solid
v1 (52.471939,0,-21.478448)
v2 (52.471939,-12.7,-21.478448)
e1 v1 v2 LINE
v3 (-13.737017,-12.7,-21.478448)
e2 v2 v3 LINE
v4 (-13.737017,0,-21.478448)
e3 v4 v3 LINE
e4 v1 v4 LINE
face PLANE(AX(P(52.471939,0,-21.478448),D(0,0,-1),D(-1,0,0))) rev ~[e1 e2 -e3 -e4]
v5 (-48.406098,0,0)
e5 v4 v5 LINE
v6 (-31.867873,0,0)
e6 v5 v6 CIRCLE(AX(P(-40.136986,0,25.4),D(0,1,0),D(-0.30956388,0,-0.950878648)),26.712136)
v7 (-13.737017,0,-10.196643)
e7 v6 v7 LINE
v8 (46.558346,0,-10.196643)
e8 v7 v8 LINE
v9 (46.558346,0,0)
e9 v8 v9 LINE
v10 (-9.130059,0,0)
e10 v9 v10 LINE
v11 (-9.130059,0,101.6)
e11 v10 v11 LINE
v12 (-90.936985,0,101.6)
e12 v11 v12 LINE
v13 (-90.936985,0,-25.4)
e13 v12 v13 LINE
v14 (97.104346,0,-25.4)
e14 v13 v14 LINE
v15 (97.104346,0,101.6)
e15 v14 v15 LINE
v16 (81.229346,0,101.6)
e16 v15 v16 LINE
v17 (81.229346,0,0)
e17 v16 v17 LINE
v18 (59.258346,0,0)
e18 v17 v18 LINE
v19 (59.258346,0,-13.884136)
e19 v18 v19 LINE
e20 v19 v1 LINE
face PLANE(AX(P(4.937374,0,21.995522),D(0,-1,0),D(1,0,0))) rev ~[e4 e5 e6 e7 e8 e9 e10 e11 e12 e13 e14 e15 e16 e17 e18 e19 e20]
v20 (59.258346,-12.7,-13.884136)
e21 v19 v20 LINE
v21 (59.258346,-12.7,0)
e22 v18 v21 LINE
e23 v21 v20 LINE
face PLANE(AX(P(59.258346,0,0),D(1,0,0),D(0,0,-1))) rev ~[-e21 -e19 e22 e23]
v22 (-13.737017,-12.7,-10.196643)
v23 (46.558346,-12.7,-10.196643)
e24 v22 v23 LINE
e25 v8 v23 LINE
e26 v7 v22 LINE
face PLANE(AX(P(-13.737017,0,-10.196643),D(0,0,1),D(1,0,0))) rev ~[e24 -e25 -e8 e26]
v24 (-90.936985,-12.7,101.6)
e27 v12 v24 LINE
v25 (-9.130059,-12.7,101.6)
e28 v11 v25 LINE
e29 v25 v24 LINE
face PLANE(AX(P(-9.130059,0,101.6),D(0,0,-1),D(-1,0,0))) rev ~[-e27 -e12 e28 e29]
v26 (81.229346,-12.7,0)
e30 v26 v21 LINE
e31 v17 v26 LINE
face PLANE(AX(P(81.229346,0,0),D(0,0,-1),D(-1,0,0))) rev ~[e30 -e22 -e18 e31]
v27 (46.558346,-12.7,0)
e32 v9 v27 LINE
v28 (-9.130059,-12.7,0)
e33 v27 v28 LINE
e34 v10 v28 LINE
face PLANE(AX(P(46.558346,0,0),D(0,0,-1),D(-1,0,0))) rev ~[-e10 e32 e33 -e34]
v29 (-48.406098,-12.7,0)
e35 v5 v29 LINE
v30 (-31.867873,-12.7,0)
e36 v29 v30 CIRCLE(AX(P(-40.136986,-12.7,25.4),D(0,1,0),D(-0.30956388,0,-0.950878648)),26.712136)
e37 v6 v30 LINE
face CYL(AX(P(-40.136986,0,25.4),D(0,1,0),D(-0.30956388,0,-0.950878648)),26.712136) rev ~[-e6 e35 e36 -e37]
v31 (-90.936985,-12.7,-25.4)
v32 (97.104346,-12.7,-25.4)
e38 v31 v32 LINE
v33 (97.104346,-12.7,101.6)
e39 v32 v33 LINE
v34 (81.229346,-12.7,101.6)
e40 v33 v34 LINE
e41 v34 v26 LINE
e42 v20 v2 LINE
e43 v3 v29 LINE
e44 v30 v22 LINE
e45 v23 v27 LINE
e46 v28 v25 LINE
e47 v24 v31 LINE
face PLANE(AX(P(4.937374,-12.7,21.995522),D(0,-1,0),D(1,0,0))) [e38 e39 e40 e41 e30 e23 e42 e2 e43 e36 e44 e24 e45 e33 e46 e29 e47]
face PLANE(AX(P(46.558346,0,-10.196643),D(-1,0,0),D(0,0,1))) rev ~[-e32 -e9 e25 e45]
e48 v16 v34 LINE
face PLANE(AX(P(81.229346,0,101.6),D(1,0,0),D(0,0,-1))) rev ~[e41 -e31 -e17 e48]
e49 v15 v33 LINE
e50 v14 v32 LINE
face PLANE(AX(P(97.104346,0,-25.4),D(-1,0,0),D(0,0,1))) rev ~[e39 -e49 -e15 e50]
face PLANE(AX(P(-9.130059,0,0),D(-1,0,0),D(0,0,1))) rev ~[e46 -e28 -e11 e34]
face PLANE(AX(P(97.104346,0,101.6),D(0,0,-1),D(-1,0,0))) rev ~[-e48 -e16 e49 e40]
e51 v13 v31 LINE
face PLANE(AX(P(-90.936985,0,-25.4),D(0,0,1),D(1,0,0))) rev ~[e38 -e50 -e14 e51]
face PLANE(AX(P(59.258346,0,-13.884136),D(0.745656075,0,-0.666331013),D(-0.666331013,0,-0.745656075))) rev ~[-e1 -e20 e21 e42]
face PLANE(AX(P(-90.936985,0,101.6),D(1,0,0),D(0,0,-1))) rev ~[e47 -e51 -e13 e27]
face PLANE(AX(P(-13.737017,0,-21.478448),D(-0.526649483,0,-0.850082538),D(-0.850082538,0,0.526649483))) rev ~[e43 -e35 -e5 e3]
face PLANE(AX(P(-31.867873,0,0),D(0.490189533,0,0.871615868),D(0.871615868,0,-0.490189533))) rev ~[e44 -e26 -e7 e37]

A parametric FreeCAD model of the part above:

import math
import FreeCAD as App
import Part
import Sketcher
Q = App.Units.Quantity

doc = App.newDocument("Part")
body = doc.addObject("PartDesign::Body", "Body")

# Sketch on XZ plane
sketch1 = body.newObject("Sketcher::SketchObject", "Sketch")
sketch1.AttachmentSupport = (doc.getObject("XZ_Plane"), [""])
sketch1.MapMode = "FlatFace"
sketch1.addGeometry([
    Part.LineSegment(App.Vector(-9, 102, 0), App.Vector(-91, 102, 0)),  # 0
    Part.LineSegment(App.Vector(-91, 102, 0), App.Vector(-91, -25, 0)),  # 1
    Part.LineSegment(App.Vector(-91, -25, 0), App.Vector(97, -25, 0)),  # 2
    Part.LineSegment(App.Vector(97, -25, 0), App.Vector(97, 102, 0)),  # 3
    Part.LineSegment(App.Vector(97, 102, 0), App.Vector(81, 102, 0)),  # 4
    Part.LineSegment(App.Vector(81, 102, 0), App.Vector(81, 0, 0)),  # 5
    Part.LineSegment(App.Vector(81, 0, 0), App.Vector(59, 0, 0)),  # 6
    Part.LineSegment(App.Vector(59, 0, 0), App.Vector(59, -14, 0)),  # 7
    Part.LineSegment(App.Vector(59, -14, 0), App.Vector(52, -21, 0)),  # 8
    Part.LineSegment(App.Vector(52, -21, 0), App.Vector(-14, -21, 0)),  # 9
    Part.LineSegment(App.Vector(-14, -21, 0), App.Vector(-48, 0, 0)),  # 10
    Part.ArcOfCircle(Part.Circle(App.Vector(-40, 25, 0), App.Vector(0, 0, 1), 27), math.radians(-72), math.radians(252)),  # 11
    Part.LineSegment(App.Vector(-32, 0, 0), App.Vector(-14, -10, 0)),  # 12
    Part.LineSegment(App.Vector(-14, -10, 0), App.Vector(47, -10, 0)),  # 13
    Part.LineSegment(App.Vector(47, -10, 0), App.Vector(47, 0, 0)),  # 14
    Part.LineSegment(App.Vector(47, 0, 0), App.Vector(-9, 0, 0)),  # 15
    Part.LineSegment(App.Vector(-9, 0, 0), App.Vector(-9, 102, 0)),  # 16
], False)
sketch1.addConstraint([
    Sketcher.Constraint("Coincident", 0, 2, 1, 1),
    Sketcher.Constraint("Coincident", 1, 2, 2, 1),
    Sketcher.Constraint("Coincident", 2, 2, 3, 1),
    Sketcher.Constraint("Coincident", 3, 2, 4, 1),
    Sketcher.Constraint("Coincident", 4, 2, 5, 1),
    Sketcher.Constraint("Coincident", 5, 2, 6, 1),
    Sketcher.Constraint("Coincident", 6, 2, 7, 1),
    Sketcher.Constraint("Coincident", 7, 2, 8, 1),
    Sketcher.Constraint("Coincident", 8, 2, 9, 1),
    Sketcher.Constraint("Coincident", 9, 2, 10, 1),
    Sketcher.Constraint("Coincident", 10, 2, 11, 2),
    Sketcher.Constraint("Coincident", 11, 1, 12, 1),
    Sketcher.Constraint("Coincident", 12, 2, 13, 1),
    Sketcher.Constraint("Coincident", 13, 2, 14, 1),
    Sketcher.Constraint("Coincident", 14, 2, 15, 1),
    Sketcher.Constraint("Coincident", 15, 2, 16, 1),
    Sketcher.Constraint("Coincident", 16, 2, 0, 1),
    Sketcher.Constraint("Horizontal", 0),
    Sketcher.Constraint("Vertical", 1),
    Sketcher.Constraint("Horizontal", 2),
    Sketcher.Constraint("Vertical", 3),
    Sketcher.Constraint("Horizontal", 4),
    Sketcher.Constraint("Vertical", 5),
    Sketcher.Constraint("Horizontal", 6),
    Sketcher.Constraint("Vertical", 7),
    Sketcher.Constraint("Horizontal", 9),
    Sketcher.Constraint("Horizontal", 13),
    Sketcher.Constraint("Vertical", 14),
    Sketcher.Constraint("Horizontal", 15),
    Sketcher.Constraint("Vertical", 16),
    Sketcher.Constraint("PointOnObject", 5, 2, -1),
    Sketcher.Constraint("PointOnObject", 10, 2, -1),
    Sketcher.Constraint("PointOnObject", 11, 1, -1),
    Sketcher.Constraint("PointOnObject", 14, 2, -1),
    Sketcher.Constraint("Horizontal", 0, 2, 3, 2),
    Sketcher.Constraint("Vertical", 9, 2, 12, 2),
    Sketcher.Constraint("DistanceY", 1, 2, 1, 1, Q("5 in")),
    Sketcher.Constraint("DistanceY", 5, 2, 5, 1, Q("4 in")),
    Sketcher.Constraint("DistanceY", -1, 1, 11, 3, Q("1 in")),
    Sketcher.Constraint("DistanceX", 0, 2, 11, 3, Q("2 in")),
    Sketcher.Constraint("DistanceX", 13, 2, 7, 2, Q("0.5 in")),
    Sketcher.Constraint("DistanceX", 4, 2, 4, 1, Q("0.625 in")),
    Sketcher.Constraint("DistanceX", 6, 2, 6, 1, Q("0.865 in")),
    Sketcher.Constraint("Radius", 11, Q("26.712136 mm")),
    Sketcher.Constraint("DistanceX", 2, 1, 2, 2, Q("188.041331 mm")),
    Sketcher.Constraint("Distance", 8, Q("10.184738 mm")),
    Sketcher.Constraint("Distance", 12, Q("20.801429 mm")),
    Sketcher.Constraint("DistanceX", 0, 2, 0, 1, Q("81.806926 mm")),
    Sketcher.Constraint("DistanceX", 9, 2, 9, 1, Q("66.208956 mm")),
    Sketcher.Constraint("DistanceX", 13, 1, 13, 2, Q("60.295363 mm")),
    Sketcher.Constraint("DistanceY", 7, 2, 7, 1, Q("13.884136 mm")),
    Sketcher.Constraint("DistanceX", -1, 1, 8, 2, Q("52.471939 mm")),
])
pad1 = body.newObject("PartDesign::Pad", "Pad")
pad1.Profile = sketch1
pad1.Length = Q("0.5 in")

doc.recompute()
